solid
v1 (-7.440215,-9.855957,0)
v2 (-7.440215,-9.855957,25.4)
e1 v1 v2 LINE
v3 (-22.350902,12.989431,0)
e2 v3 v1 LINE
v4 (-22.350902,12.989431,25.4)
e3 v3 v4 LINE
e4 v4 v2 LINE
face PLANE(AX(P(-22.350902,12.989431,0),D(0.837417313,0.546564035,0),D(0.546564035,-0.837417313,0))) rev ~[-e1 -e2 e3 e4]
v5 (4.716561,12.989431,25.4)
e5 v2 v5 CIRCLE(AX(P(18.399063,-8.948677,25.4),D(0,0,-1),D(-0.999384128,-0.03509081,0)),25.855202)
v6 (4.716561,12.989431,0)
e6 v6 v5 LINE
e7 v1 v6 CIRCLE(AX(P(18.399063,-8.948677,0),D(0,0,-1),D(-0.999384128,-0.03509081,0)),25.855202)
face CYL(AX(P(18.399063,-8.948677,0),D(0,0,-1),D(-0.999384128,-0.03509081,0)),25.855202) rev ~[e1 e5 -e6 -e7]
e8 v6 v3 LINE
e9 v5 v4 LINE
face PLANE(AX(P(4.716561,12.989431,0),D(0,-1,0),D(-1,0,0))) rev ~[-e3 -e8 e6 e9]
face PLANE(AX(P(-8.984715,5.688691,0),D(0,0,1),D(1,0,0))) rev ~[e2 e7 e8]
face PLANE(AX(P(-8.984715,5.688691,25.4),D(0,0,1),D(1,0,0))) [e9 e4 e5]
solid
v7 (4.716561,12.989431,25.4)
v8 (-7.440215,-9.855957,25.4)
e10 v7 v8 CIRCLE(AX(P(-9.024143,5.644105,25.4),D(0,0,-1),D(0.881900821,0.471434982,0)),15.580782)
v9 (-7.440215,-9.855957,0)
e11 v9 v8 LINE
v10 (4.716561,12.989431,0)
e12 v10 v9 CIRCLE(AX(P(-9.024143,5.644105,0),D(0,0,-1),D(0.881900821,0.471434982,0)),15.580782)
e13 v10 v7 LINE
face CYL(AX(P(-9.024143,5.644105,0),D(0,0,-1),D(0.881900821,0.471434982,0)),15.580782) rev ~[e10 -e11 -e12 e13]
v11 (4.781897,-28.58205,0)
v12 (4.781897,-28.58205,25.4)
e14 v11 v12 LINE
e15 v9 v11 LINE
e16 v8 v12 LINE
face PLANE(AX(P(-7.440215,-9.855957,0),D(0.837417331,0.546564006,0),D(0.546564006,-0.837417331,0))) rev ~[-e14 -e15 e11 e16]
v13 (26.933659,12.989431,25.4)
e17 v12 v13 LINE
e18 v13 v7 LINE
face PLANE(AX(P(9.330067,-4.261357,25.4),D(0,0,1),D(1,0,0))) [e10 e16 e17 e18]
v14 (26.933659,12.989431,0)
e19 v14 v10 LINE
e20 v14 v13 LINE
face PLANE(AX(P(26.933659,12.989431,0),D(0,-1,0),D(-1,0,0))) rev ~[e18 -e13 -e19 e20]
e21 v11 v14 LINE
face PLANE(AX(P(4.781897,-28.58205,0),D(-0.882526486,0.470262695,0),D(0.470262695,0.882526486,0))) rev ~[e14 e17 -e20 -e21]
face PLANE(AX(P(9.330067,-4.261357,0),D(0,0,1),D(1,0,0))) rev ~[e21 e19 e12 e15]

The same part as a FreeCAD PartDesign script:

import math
import FreeCAD as App
import Part
import Sketcher
Q = App.Units.Quantity

doc = App.newDocument("Part")
body = doc.addObject("PartDesign::Body", "Body")
body.AllowCompound = True

sketch1 = body.newObject("Sketcher::SketchObject", "Sketch")
sketch1.AttachmentSupport = (doc.getObject("XY_Plane"), [""])
sketch1.MapMode = "FlatFace"
sketch1.addGeometry([
    Part.LineSegment(App.Vector(4.716561, 12.989431, 0), App.Vector(-22.350902, 12.989431, 0)),
    Part.LineSegment(App.Vector(-22.350902, 12.989431, 0), App.Vector(-7.440215, -9.855957, 0)),
    Part.ArcOfCircle(Part.Circle(App.Vector(18.399063, -8.948677, 0), App.Vector(0, 0, 1), 25.855202), math.radians(121.951234), math.radians(182.010968)),
    Part.ArcOfCircle(Part.Circle(App.Vector(-9.024143, 5.644105, 0), App.Vector(0, 0, 1), 15.580782), math.radians(-84.165283), math.radians(28.127485)),
    Part.LineSegment(App.Vector(-7.440215, -9.855957, 0), App.Vector(4.781897, -28.58205, 0)),
    Part.LineSegment(App.Vector(4.781897, -28.58205, 0), App.Vector(26.933659, 12.989431, 0)),
    Part.LineSegment(App.Vector(26.933659, 12.989431, 0), App.Vector(4.716561, 12.989431, 0)),
], False)
sketch1.addConstraint([
    Sketcher.Constraint("Coincident", 0, 2, 1, 1),
    Sketcher.Constraint("Coincident", 1, 2, 2, 2),
    Sketcher.Constraint("Coincident", 2, 1, 0, 1),
    Sketcher.Constraint("Coincident", 3, 1, 4, 1),
    Sketcher.Constraint("Coincident", 4, 2, 5, 1),
    Sketcher.Constraint("Coincident", 5, 2, 6, 1),
    Sketcher.Constraint("Coincident", 6, 2, 3, 2),
    Sketcher.Constraint("Horizontal", 0),
    Sketcher.Constraint("Horizontal", 6),
    Sketcher.Constraint("Coincident", 3, 1, 1, 2),
    Sketcher.Constraint("Coincident", 6, 2, 2, 1),
    Sketcher.Constraint("Parallel", 1, 4),
    Sketcher.Constraint("Radius", 2, 25.855202),
    Sketcher.Constraint("Radius", 3, 15.580782),
    Sketcher.Constraint("DistanceX", 6, 2, 6, 1, 22.217098),
    Sketcher.Constraint("Distance", 1, 27.280769),
    Sketcher.Constraint("Distance", 4, 22.361721),
    Sketcher.Constraint("Distance", 5, 47.10508),
    Sketcher.Constraint("DistanceX", 0, 2, 0, 1, 27.067463),
    Sketcher.Constraint("DistanceY", -1, 1, 0, 2, 12.989431),
    Sketcher.Constraint("DistanceX", -1, 1, 2, 1, 4.716561),
])
pad1 = body.newObject("PartDesign::Pad", "Pad")
pad1.Profile = sketch1
pad1.Length = Q("1 in")

doc.recompute()
